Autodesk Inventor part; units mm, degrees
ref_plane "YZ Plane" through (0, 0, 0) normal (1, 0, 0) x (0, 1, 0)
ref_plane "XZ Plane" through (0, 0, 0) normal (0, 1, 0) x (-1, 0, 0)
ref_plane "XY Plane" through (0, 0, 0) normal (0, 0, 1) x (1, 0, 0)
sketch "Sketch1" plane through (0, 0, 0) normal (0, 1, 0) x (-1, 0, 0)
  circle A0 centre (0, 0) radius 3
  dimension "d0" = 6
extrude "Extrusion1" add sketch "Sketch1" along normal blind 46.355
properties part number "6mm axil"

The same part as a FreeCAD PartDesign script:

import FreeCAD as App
import Part
import Sketcher

V = App.Vector

doc = App.newDocument("Part")
body = doc.addObject("PartDesign::Body", "Body")

sketch1 = doc.addObject("Sketcher::SketchObject", "Sketch")
body.addObject(sketch1)
sketch1.AttachmentSupport = (doc.XZ_Plane, [""])
sketch1.MapMode = "FlatFace"
sketch1.addGeometry(Part.Circle(V(0, 0, 0), V(0, 0, 1), 3), False)
sketch1.addConstraint(Sketcher.Constraint("Coincident", 0, 3, -1, 1))
sketch1.addConstraint(Sketcher.Constraint("Diameter", 0, 6.0))
pad1 = doc.addObject("PartDesign::Pad", "Pad")
body.addObject(pad1)
pad1.Profile = sketch1
pad1.Length = 46.355
pad1.Reversed = True

doc.recompute()
